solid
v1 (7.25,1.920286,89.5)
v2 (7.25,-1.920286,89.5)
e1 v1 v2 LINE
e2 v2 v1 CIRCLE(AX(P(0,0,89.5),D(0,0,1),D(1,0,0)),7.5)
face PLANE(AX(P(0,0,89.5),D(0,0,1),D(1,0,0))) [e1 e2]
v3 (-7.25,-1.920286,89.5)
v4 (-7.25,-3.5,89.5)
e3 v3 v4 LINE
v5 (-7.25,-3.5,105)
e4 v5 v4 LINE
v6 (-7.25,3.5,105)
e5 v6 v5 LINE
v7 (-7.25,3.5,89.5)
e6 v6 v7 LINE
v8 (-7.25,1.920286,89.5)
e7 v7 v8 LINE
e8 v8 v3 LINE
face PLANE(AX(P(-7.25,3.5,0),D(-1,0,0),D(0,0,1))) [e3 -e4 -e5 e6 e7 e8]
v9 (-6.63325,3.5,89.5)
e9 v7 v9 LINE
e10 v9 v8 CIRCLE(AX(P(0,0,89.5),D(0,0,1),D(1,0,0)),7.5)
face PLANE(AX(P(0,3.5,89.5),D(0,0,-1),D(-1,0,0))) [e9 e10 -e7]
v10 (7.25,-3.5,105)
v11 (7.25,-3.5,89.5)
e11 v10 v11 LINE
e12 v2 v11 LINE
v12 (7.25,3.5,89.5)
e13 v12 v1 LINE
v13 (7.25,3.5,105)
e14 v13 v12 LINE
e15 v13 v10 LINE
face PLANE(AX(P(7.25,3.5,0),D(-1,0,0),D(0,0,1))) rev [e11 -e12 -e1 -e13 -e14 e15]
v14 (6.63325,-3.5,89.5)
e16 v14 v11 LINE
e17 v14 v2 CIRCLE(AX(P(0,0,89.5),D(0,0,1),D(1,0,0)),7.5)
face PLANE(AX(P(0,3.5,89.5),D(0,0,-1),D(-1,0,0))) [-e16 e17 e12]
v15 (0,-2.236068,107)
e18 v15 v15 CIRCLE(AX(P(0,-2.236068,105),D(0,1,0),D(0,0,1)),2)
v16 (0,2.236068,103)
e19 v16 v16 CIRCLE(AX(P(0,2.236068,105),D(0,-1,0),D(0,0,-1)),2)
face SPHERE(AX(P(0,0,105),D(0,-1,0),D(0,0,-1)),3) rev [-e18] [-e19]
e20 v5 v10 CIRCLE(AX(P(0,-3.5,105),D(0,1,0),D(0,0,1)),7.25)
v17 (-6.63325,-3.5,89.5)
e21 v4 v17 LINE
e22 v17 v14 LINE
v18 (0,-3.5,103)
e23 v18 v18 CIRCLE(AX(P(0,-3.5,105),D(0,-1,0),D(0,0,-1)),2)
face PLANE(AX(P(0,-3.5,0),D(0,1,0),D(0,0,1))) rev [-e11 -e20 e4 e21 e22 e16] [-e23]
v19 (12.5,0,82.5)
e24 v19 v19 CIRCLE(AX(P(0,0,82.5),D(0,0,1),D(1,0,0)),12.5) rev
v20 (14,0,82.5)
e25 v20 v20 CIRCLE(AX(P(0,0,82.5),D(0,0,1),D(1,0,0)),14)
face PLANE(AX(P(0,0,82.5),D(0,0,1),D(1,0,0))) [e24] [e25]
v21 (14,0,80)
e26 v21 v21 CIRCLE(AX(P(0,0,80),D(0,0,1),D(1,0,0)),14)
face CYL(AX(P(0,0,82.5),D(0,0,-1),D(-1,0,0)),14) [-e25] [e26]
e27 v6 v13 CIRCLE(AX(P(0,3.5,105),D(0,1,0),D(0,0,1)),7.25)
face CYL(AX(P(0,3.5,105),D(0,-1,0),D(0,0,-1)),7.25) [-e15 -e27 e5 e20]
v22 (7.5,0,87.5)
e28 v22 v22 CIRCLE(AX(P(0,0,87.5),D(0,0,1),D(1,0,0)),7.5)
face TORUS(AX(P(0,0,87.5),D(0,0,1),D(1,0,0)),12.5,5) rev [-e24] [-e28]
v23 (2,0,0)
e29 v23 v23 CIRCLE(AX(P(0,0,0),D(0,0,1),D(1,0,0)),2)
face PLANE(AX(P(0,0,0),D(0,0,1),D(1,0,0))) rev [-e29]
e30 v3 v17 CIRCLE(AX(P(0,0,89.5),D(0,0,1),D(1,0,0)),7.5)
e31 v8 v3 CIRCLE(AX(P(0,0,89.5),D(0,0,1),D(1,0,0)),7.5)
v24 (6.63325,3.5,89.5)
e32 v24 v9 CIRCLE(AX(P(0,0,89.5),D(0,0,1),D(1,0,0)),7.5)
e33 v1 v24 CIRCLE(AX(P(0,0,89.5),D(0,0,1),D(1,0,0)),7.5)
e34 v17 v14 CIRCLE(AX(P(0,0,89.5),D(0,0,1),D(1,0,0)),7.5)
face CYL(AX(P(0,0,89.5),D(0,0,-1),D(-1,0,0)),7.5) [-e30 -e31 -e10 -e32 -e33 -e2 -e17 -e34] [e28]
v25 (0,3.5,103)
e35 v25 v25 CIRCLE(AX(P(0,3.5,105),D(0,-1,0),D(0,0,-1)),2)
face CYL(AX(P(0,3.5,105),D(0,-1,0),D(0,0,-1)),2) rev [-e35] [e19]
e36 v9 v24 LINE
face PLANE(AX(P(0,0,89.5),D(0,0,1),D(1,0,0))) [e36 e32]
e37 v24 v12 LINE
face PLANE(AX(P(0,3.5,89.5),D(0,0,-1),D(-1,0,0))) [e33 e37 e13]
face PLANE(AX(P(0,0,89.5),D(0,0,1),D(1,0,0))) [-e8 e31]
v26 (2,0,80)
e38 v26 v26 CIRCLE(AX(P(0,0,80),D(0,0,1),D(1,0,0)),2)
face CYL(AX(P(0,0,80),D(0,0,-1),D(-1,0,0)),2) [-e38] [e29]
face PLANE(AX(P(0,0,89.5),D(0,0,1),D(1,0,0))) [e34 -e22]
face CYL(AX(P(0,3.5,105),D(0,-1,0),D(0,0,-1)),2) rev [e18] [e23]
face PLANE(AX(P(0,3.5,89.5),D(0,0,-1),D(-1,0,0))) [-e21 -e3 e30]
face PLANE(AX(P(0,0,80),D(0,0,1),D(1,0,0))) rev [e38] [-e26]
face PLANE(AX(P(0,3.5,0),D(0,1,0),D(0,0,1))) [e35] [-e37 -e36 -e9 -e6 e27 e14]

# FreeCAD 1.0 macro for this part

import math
import FreeCAD as App
import Part
import Sketcher
from FreeCAD import Vector


def edges_at(feature, points):
    """Names of the edges that pass closest to the given points."""
    edges = feature.Shape.Edges
    near = lambda p: min(range(len(edges)), key=lambda i: edges[i].distToShape(Part.Vertex(*p))[0])
    return sorted({f"Edge{near(p) + 1}" for p in points})

doc = App.newDocument("Part")
params = doc.addObject("Spreadsheet::Sheet", "Params")
for row, (alias, value) in enumerate([
    ("sketch1_diameter", "4 mm"),
    ("pad1_length", "80 mm"),
    ("sketch2_diameter", "28 mm"),
    ("pad2_length", "2.5 mm"),
    ("sketch3_diameter", "15 mm"),
    ("pad3_length", "7 mm"),
    ("fillet_radius", "5 mm"),
    ("sketch4_radius", "7.25 mm"),
    ("sketch4_height", "15.5 mm"),
    ("pad4_length", "7 mm"),
    ("sketch5_diameter", "4 mm"),
    ("pocket1_length", "7 mm"),
    ("sketch6_radius", "3 mm"),
    ("groove_angle", "360 deg"),
], start=1):
    params.set(f"A{row}", alias)
    params.set(f"B{row}", "=" + value)
    params.setAlias(f"B{row}", alias)

body = doc.addObject("PartDesign::Body", "Body")

sketch1 = doc.addObject("Sketcher::SketchObject", "Sketch")
body.addObject(sketch1)
sketch1.AttachmentSupport = (doc.XY_Plane, [""])
sketch1.MapMode = "FlatFace"
sketch1.addGeometry(Part.Circle(Vector(0, 0, 0), Vector(0, 0, 1), 2), False)
sketch1.addConstraint(Sketcher.Constraint("Coincident", 0, 3, -1, 1))
sketch1.addConstraint(Sketcher.Constraint("Diameter", 0, 4.0))
sketch1.setExpression("Constraints[1]", "Params.sketch1_diameter")
pad1 = doc.addObject("PartDesign::Pad", "Pad")
body.addObject(pad1)
pad1.Profile = sketch1
pad1.setExpression("Length", "Params.pad1_length")

sketch2 = doc.addObject("Sketcher::SketchObject", "Sketch001")
body.addObject(sketch2)
sketch2.AttachmentSupport = (doc.XY_Plane, [""])
sketch2.MapMode = "FlatFace"
sketch2.AttachmentOffset = App.Placement(Vector(0, 0, 80), App.Rotation())
sketch2.addGeometry(Part.Circle(Vector(0, 0, 0), Vector(0, 0, 1), 14), False)
sketch2.addConstraint(Sketcher.Constraint("Coincident", 0, 3, -1, 1))
sketch2.addConstraint(Sketcher.Constraint("Diameter", 0, 28.0))
sketch2.setExpression("Constraints[1]", "Params.sketch2_diameter")
pad2 = doc.addObject("PartDesign::Pad", "Pad001")
body.addObject(pad2)
pad2.Profile = sketch2
pad2.setExpression("Length", "Params.pad2_length")

sketch3 = doc.addObject("Sketcher::SketchObject", "Sketch002")
body.addObject(sketch3)
sketch3.AttachmentSupport = (doc.XY_Plane, [""])
sketch3.MapMode = "FlatFace"
sketch3.AttachmentOffset = App.Placement(Vector(0, 0, 82.5), App.Rotation())
sketch3.addGeometry(Part.Circle(Vector(0, 0, 0), Vector(0, 0, 1), 8), False)
sketch3.addConstraint(Sketcher.Constraint("Coincident", 0, 3, -1, 1))
sketch3.addConstraint(Sketcher.Constraint("Diameter", 0, 15.0))
sketch3.setExpression("Constraints[1]", "Params.sketch3_diameter")
pad3 = doc.addObject("PartDesign::Pad", "Pad002")
body.addObject(pad3)
pad3.Profile = sketch3
pad3.setExpression("Length", "Params.pad3_length")
doc.recompute()

fillet = doc.addObject("PartDesign::Fillet", "Fillet")
body.addObject(fillet)
fillet.Base = (pad3, edges_at(pad3, [(-7.5, 0, 82.5)]))
fillet.setExpression("Radius", "Params.fillet_radius")

sketch4 = doc.addObject("Sketcher::SketchObject", "Sketch003")
body.addObject(sketch4)
sketch4.AttachmentSupport = (doc.XZ_Plane, [""])
sketch4.MapMode = "FlatFace"
sketch4.addGeometry(Part.LineSegment(Vector(7, 105, 0), Vector(7, 90, 0)), False)
sketch4.addGeometry(Part.LineSegment(Vector(7, 90, 0), Vector(-7, 90, 0)), False)
sketch4.addGeometry(Part.LineSegment(Vector(-7, 90, 0), Vector(-7, 105, 0)), False)
sketch4.addGeometry(Part.ArcOfCircle(Part.Circle(Vector(0, 105, 0), Vector(0, 0, 1), 7), math.radians(0), math.radians(180)), False)
sketch4.addConstraint(Sketcher.Constraint("Coincident", 0, 2, 1, 1))
sketch4.addConstraint(Sketcher.Constraint("Coincident", 1, 2, 2, 1))
sketch4.addConstraint(Sketcher.Constraint("Tangent", 2, 2, 3, 2))
sketch4.addConstraint(Sketcher.Constraint("Tangent", 3, 1, 0, 1))
sketch4.addConstraint(Sketcher.Constraint("Vertical", 0))
sketch4.addConstraint(Sketcher.Constraint("Horizontal", 1))
sketch4.addConstraint(Sketcher.Constraint("Vertical", 2))
sketch4.addConstraint(Sketcher.Constraint("PointOnObject", 3, 3, -2))
sketch4.addConstraint(Sketcher.Constraint("Radius", 3, 7.25))
sketch4.addConstraint(Sketcher.Constraint("DistanceY", 0, 2, 0, 1, 15.5))
sketch4.addConstraint(Sketcher.Constraint("DistanceY", -1, 1, 3, 3, 105.0))
sketch4.setExpression("Constraints[8]", "Params.sketch4_radius")
sketch4.setExpression("Constraints[9]", "Params.sketch4_height")
pad4 = doc.addObject("PartDesign::Pad", "Pad003")
body.addObject(pad4)
pad4.Profile = sketch4
pad4.setExpression("Length", "Params.pad4_length")
pad4.Midplane = True

sketch5 = doc.addObject("Sketcher::SketchObject", "Sketch004")
body.addObject(sketch5)
sketch5.AttachmentSupport = (doc.XZ_Plane, [""])
sketch5.MapMode = "FlatFace"
sketch5.AttachmentOffset = App.Placement(Vector(0, 0, 3.5), App.Rotation())
sketch5.addGeometry(Part.Circle(Vector(0, 105, 0), Vector(0, 0, 1), 2), False)
sketch5.addConstraint(Sketcher.Constraint("PointOnObject", 0, 3, -2))
sketch5.addConstraint(Sketcher.Constraint("Diameter", 0, 4.0))
sketch5.addConstraint(Sketcher.Constraint("DistanceY", -1, 1, 0, 3, 105.0))
sketch5.setExpression("Constraints[1]", "Params.sketch5_diameter")
pocket1 = doc.addObject("PartDesign::Pocket", "Pocket")
body.addObject(pocket1)
pocket1.Profile = sketch5
pocket1.setExpression("Length", "Params.pocket1_length")

sketch6 = doc.addObject("Sketcher::SketchObject", "Sketch005")
body.addObject(sketch6)
sketch6.AttachmentSupport = (doc.XZ_Plane, [""])
sketch6.MapMode = "FlatFace"
sketch6.addGeometry(Part.LineSegment(Vector(0, 102, 0), Vector(0, 108, 0)), False)
sketch6.addGeometry(Part.ArcOfCircle(Part.Circle(Vector(0, 105, 0), Vector(0, 0, 1), 3), math.radians(-90), math.radians(90)), False)
sketch6.addConstraint(Sketcher.Constraint("Coincident", 0, 1, 1, 1))
sketch6.addConstraint(Sketcher.Constraint("Coincident", 1, 2, 0, 2))
sketch6.addConstraint(Sketcher.Constraint("Vertical", 0))
sketch6.addConstraint(Sketcher.Constraint("PointOnObject", 1, 3, -2))
sketch6.addConstraint(Sketcher.Constraint("PointOnObject", 0, 1, -2))
sketch6.addConstraint(Sketcher.Constraint("Radius", 1, 3.0))
sketch6.addConstraint(Sketcher.Constraint("DistanceY", -1, 1, 1, 3, 105.0))
sketch6.setExpression("Constraints[5]", "Params.sketch6_radius")
groove = doc.addObject("PartDesign::Groove", "Groove")
body.addObject(groove)
groove.Profile = sketch6
groove.ReferenceAxis = (sketch6, ["V_Axis"])
groove.setExpression("Angle", "Params.groove_angle")

doc.recompute()
